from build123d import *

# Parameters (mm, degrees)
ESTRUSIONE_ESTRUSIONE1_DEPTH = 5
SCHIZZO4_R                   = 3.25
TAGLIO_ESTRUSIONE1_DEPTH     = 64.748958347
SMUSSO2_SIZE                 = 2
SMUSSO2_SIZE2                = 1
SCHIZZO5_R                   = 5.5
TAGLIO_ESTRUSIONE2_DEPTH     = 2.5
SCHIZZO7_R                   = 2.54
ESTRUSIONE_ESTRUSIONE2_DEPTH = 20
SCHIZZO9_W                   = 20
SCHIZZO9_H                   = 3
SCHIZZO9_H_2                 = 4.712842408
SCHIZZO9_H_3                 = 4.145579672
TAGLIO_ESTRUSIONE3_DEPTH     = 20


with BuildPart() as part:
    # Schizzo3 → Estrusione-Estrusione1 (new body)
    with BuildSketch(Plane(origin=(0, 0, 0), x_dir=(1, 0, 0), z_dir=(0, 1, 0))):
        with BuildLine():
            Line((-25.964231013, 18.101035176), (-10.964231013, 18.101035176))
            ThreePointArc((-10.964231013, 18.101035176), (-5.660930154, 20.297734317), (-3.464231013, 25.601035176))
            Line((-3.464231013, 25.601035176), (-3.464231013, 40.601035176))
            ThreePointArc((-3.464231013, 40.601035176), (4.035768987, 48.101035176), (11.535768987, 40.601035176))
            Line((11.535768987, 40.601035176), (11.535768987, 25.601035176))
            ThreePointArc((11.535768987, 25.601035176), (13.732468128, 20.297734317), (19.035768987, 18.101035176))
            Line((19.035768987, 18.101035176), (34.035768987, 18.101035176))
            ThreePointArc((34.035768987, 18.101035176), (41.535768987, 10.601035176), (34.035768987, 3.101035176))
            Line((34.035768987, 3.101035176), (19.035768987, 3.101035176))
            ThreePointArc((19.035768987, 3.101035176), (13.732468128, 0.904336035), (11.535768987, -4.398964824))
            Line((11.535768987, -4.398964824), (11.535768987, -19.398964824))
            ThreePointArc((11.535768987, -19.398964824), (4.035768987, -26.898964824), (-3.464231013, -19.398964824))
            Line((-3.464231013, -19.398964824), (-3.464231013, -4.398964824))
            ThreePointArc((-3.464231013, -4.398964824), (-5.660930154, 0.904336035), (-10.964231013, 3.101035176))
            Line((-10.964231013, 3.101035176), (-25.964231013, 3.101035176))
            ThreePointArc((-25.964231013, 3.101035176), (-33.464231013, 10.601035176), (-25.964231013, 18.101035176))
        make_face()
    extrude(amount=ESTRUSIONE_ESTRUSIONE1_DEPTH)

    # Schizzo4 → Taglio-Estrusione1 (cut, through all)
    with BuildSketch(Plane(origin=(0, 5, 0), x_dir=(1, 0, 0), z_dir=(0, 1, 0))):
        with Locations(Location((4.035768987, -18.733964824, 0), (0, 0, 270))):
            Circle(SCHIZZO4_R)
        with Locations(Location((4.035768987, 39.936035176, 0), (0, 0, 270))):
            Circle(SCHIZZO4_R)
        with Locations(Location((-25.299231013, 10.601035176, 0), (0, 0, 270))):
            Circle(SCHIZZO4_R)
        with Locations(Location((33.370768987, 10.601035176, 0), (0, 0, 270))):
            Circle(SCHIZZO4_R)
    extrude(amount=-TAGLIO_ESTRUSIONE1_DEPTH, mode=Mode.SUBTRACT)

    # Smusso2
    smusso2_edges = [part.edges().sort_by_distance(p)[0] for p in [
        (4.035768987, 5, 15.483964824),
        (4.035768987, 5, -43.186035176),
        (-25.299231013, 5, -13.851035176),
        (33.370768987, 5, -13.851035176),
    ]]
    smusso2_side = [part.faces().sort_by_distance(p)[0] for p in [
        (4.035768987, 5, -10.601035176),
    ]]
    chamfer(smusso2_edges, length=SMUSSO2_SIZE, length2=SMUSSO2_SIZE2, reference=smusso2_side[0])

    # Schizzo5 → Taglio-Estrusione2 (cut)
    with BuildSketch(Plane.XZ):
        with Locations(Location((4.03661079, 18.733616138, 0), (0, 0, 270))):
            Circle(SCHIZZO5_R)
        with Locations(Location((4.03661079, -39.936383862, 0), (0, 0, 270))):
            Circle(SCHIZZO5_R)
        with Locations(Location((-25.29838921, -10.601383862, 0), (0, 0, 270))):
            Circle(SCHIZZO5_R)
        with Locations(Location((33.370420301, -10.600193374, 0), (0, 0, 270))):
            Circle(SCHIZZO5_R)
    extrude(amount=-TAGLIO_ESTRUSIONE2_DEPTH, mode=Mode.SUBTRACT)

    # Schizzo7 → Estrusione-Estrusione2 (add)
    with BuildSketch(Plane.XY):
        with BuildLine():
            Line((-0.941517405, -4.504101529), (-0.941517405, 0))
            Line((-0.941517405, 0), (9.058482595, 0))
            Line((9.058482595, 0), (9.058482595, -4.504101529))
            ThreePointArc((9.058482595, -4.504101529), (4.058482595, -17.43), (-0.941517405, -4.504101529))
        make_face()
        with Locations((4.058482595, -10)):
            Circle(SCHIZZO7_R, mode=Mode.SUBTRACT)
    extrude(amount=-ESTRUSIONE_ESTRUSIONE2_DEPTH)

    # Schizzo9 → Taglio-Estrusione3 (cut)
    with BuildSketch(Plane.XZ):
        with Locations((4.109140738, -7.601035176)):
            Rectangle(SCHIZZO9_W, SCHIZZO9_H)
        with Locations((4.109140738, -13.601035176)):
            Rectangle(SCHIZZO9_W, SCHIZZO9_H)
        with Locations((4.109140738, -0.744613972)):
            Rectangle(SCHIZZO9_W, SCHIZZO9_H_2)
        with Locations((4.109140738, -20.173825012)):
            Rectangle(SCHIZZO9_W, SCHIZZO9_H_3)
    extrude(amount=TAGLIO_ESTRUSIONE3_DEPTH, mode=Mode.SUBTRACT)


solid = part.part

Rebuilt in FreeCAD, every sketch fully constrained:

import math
import FreeCAD as App
import Part
import Sketcher
from FreeCAD import Vector


def edges_at(feature, points):
    """Names of the edges that pass closest to the given points."""
    edges = feature.Shape.Edges
    near = lambda p: min(range(len(edges)), key=lambda i: edges[i].distToShape(Part.Vertex(*p))[0])
    return sorted({f"Edge{near(p) + 1}" for p in points})

doc = App.newDocument("Part")
body = doc.addObject("PartDesign::Body", "Body")

sketch1 = body.newObject("Sketcher::SketchObject", "Sketch")
sketch1.AttachmentSupport = (doc.getObject("XZ_Plane"), [""])
sketch1.MapMode = "FlatFace"
sketch1.addGeometry(Part.LineSegment(Vector(-11, -18, 0), Vector(-26, -18, 0)), False)
sketch1.addGeometry(Part.ArcOfCircle(Part.Circle(Vector(-26, -11, 0), Vector(0, 0, 1), 8), math.radians(90), math.radians(270)), False)
sketch1.addGeometry(Part.LineSegment(Vector(-26, -3, 0), Vector(-11, -3, 0)), False)
sketch1.addGeometry(Part.ArcOfCircle(Part.Circle(Vector(-11, 4, 0), Vector(0, 0, 1), 8), math.radians(-90), math.radians(0)), False)
sketch1.addGeometry(Part.LineSegment(Vector(-3, 4, 0), Vector(-3, 19, 0)), False)
sketch1.addGeometry(Part.ArcOfCircle(Part.Circle(Vector(4, 19, 0), Vector(0, 0, 1), 8), math.radians(0), math.radians(180)), False)
sketch1.addGeometry(Part.LineSegment(Vector(12, 19, 0), Vector(12, 4, 0)), False)
sketch1.addGeometry(Part.ArcOfCircle(Part.Circle(Vector(19, 4, 0), Vector(0, 0, 1), 8), math.radians(180), math.radians(270)), False)
sketch1.addGeometry(Part.LineSegment(Vector(19, -3, 0), Vector(34, -3, 0)), False)
sketch1.addGeometry(Part.ArcOfCircle(Part.Circle(Vector(34, -11, 0), Vector(0, 0, 1), 8), math.radians(-90), math.radians(90)), False)
sketch1.addGeometry(Part.LineSegment(Vector(34, -18, 0), Vector(19, -18, 0)), False)
sketch1.addGeometry(Part.ArcOfCircle(Part.Circle(Vector(19, -26, 0), Vector(0, 0, 1), 8), math.radians(90), math.radians(180)), False)
sketch1.addGeometry(Part.LineSegment(Vector(12, -26, 0), Vector(12, -41, 0)), False)
sketch1.addGeometry(Part.ArcOfCircle(Part.Circle(Vector(4, -41, 0), Vector(0, 0, 1), 8), math.radians(180), math.radians(360)), False)
sketch1.addGeometry(Part.LineSegment(Vector(-3, -41, 0), Vector(-3, -26, 0)), False)
sketch1.addGeometry(Part.ArcOfCircle(Part.Circle(Vector(-11, -26, 0), Vector(0, 0, 1), 8), math.radians(0), math.radians(90)), False)
sketch1.addConstraint(Sketcher.Constraint("Tangent", 0, 2, 1, 2))
sketch1.addConstraint(Sketcher.Constraint("Tangent", 1, 1, 2, 1))
sketch1.addConstraint(Sketcher.Constraint("Tangent", 2, 2, 3, 1))
sketch1.addConstraint(Sketcher.Constraint("Tangent", 3, 2, 4, 1))
sketch1.addConstraint(Sketcher.Constraint("Tangent", 4, 2, 5, 2))
sketch1.addConstraint(Sketcher.Constraint("Tangent", 5, 1, 6, 1))
sketch1.addConstraint(Sketcher.Constraint("Tangent", 6, 2, 7, 1))
sketch1.addConstraint(Sketcher.Constraint("Tangent", 7, 2, 8, 1))
sketch1.addConstraint(Sketcher.Constraint("Tangent", 8, 2, 9, 2))
sketch1.addConstraint(Sketcher.Constraint("Tangent", 9, 1, 10, 1))
sketch1.addConstraint(Sketcher.Constraint("Tangent", 10, 2, 11, 1))
sketch1.addConstraint(Sketcher.Constraint("Tangent", 11, 2, 12, 1))
sketch1.addConstraint(Sketcher.Constraint("Tangent", 12, 2, 13, 2))
sketch1.addConstraint(Sketcher.Constraint("Tangent", 13, 1, 14, 1))
sketch1.addConstraint(Sketcher.Constraint("Tangent", 14, 2, 15, 1))
sketch1.addConstraint(Sketcher.Constraint("Tangent", 15, 2, 0, 1))
sketch1.addConstraint(Sketcher.Constraint("Horizontal", 0))
sketch1.addConstraint(Sketcher.Constraint("Horizontal", 2))
sketch1.addConstraint(Sketcher.Constraint("Vertical", 4))
sketch1.addConstraint(Sketcher.Constraint("Vertical", 6))
sketch1.addConstraint(Sketcher.Constraint("Horizontal", 8))
sketch1.addConstraint(Sketcher.Constraint("Horizontal", 10))
sketch1.addConstraint(Sketcher.Constraint("Vertical", 12))
sketch1.addConstraint(Sketcher.Constraint("Vertical", 14))
sketch1.addConstraint(Sketcher.Constraint("Equal", 1, 3))
sketch1.addConstraint(Sketcher.Constraint("Equal", 3, 5))
sketch1.addConstraint(Sketcher.Constraint("Equal", 5, 7))
sketch1.addConstraint(Sketcher.Constraint("Equal", 7, 9))
sketch1.addConstraint(Sketcher.Constraint("Equal", 9, 11))
sketch1.addConstraint(Sketcher.Constraint("Equal", 11, 13))
sketch1.addConstraint(Sketcher.Constraint("Equal", 13, 15))
sketch1.addConstraint(Sketcher.Constraint("Horizontal", 3, 3, 7, 3))
sketch1.addConstraint(Sketcher.Constraint("Vertical", 7, 3, 11, 3))
sketch1.addConstraint(Sketcher.Constraint("Equal", 2, 8))
sketch1.addConstraint(Sketcher.Constraint("Equal", 10, 4))
sketch1.addConstraint(Sketcher.Constraint("Equal", 6, 12))
sketch1.addConstraint(Sketcher.Constraint("Radius", 1, 7.5))
sketch1.addConstraint(Sketcher.Constraint("DistanceX", 0, 2, 0, 1, 15.0))
sketch1.addConstraint(Sketcher.Constraint("DistanceX", 1, 3, -1, 1, 25.964231))
sketch1.addConstraint(Sketcher.Constraint("DistanceY", 1, 3, -1, 1, 10.601035))
pad1 = body.newObject("PartDesign::Pad", "Pad")
pad1.Profile = sketch1
pad1.Length = 5
pad1.Reversed = True

sketch2 = body.newObject("Sketcher::SketchObject", "Sketch001")
sketch2.AttachmentSupport = (doc.getObject("XZ_Plane"), [""])
sketch2.MapMode = "FlatFace"
sketch2.AttachmentOffset = App.Placement(Vector(0, 0, -5), App.Rotation())
sketch2.addGeometry(Part.Circle(Vector(4, 18.7, 0), Vector(0, 0, 1), 3.2), False)
sketch2.addGeometry(Part.Circle(Vector(4, -39.9, 0), Vector(0, 0, 1), 3.2), False)
sketch2.addGeometry(Part.Circle(Vector(-25.3, -10.6, 0), Vector(0, 0, 1), 3.2), False)
sketch2.addGeometry(Part.Circle(Vector(33.4, -10.6, 0), Vector(0, 0, 1), 3.2), False)
sketch2.addConstraint(Sketcher.Constraint("Equal", 0, 1))
sketch2.addConstraint(Sketcher.Constraint("Equal", 1, 2))
sketch2.addConstraint(Sketcher.Constraint("Equal", 2, 3))
sketch2.addConstraint(Sketcher.Constraint("Horizontal", 2, 3, 3, 3))
sketch2.addConstraint(Sketcher.Constraint("Vertical", 0, 3, 1, 3))
sketch2.addConstraint(Sketcher.Constraint("Diameter", 0, 6.5))
sketch2.addConstraint(Sketcher.Constraint("DistanceY", 1, 3, 0, 3, 58.67))
sketch2.addConstraint(Sketcher.Constraint("DistanceX", 2, 3, 3, 3, 58.67))
sketch2.addConstraint(Sketcher.Constraint("DistanceX", 2, 3, 1, 3, 29.335))
sketch2.addConstraint(Sketcher.Constraint("DistanceY", 1, 3, 2, 3, 29.335))
sketch2.addConstraint(Sketcher.Constraint("DistanceX", -1, 1, 0, 3, 4.035769))
sketch2.addConstraint(Sketcher.Constraint("DistanceY", -1, 1, 0, 3, 18.733965))
pocket1 = body.newObject("PartDesign::Pocket", "Pocket")
pocket1.Profile = sketch2
pocket1.Type = "ThroughAll"
pocket1.Reversed = True
doc.recompute()

chamfer = body.newObject("PartDesign::Chamfer", "Chamfer")
chamfer.Base = (pocket1, edges_at(pocket1, [
    (4.036, 5, 15.484),
    (4.036, 5, -43.186),
    (-25.299, 5, -13.851),
    (33.371, 5, -13.851),
]))
chamfer.ChamferType = "Two distances"
chamfer.Size = 2
chamfer.Size2 = 1

sketch3 = body.newObject("Sketcher::SketchObject", "Sketch002")
sketch3.AttachmentSupport = (doc.getObject("XZ_Plane"), [""])
sketch3.MapMode = "FlatFace"
sketch3.addGeometry(Part.Circle(Vector(4, 19, 0), Vector(0, 0, 1), 6), False)
sketch3.addGeometry(Part.Circle(Vector(4, -40, 0), Vector(0, 0, 1), 6), False)
sketch3.addGeometry(Part.Circle(Vector(-25, -11, 0), Vector(0, 0, 1), 6), False)
sketch3.addGeometry(Part.Circle(Vector(33, -11, 0), Vector(0, 0, 1), 6), False)
sketch3.addConstraint(Sketcher.Constraint("Equal", 0, 1))
sketch3.addConstraint(Sketcher.Constraint("Equal", 1, 2))
sketch3.addConstraint(Sketcher.Constraint("Equal", 2, 3))
sketch3.addConstraint(Sketcher.Constraint("Vertical", 0, 3, 1, 3))
sketch3.addConstraint(Sketcher.Constraint("Diameter", 0, 11.0))
sketch3.addConstraint(Sketcher.Constraint("DistanceY", 1, 3, 0, 3, 58.67))
sketch3.addConstraint(Sketcher.Constraint("DistanceX", 2, 3, 0, 3, 29.335))
sketch3.addConstraint(Sketcher.Constraint("DistanceY", 2, 3, 0, 3, 29.335))
sketch3.addConstraint(Sketcher.Constraint("DistanceX", -1, 1, 0, 3, 4.036611))
sketch3.addConstraint(Sketcher.Constraint("DistanceX", -1, 1, 3, 3, 33.37042))
sketch3.addConstraint(Sketcher.Constraint("DistanceY", 3, 3, 0, 3, 29.33381))
sketch3.addConstraint(Sketcher.Constraint("DistanceY", -1, 1, 0, 3, 18.733616))
pocket2 = body.newObject("PartDesign::Pocket", "Pocket001")
pocket2.Profile = sketch3
pocket2.Length = 2.5

sketch4 = body.newObject("Sketcher::SketchObject", "Sketch003")
sketch4.AttachmentSupport = (doc.getObject("XY_Plane"), [""])
sketch4.MapMode = "FlatFace"
sketch4.addGeometry(Part.LineSegment(Vector(-0.9, 0, 0), Vector(-0.9, -4.5, 0)), False)
sketch4.addGeometry(Part.ArcOfCircle(Part.Circle(Vector(4.1, -10, 0), Vector(0, 0, 1), 7.4), math.radians(132), math.radians(408)), False)
sketch4.addGeometry(Part.LineSegment(Vector(9.1, -4.5, 0), Vector(9.1, 0, 0)), False)
sketch4.addGeometry(Part.LineSegment(Vector(9.1, 0, 0), Vector(-0.9, 0, 0)), False)
sketch4.addGeometry(Part.Circle(Vector(4.1, -10, 0), Vector(0, 0, 1), 2.5), False)
sketch4.addConstraint(Sketcher.Constraint("Coincident", 0, 2, 1, 1))
sketch4.addConstraint(Sketcher.Constraint("Coincident", 1, 2, 2, 1))
sketch4.addConstraint(Sketcher.Constraint("Coincident", 2, 2, 3, 1))
sketch4.addConstraint(Sketcher.Constraint("Coincident", 3, 2, 0, 1))
sketch4.addConstraint(Sketcher.Constraint("Vertical", 0))
sketch4.addConstraint(Sketcher.Constraint("Vertical", 2))
sketch4.addConstraint(Sketcher.Constraint("Horizontal", 3))
sketch4.addConstraint(Sketcher.Constraint("Coincident", 4, 3, 1, 3))
sketch4.addConstraint(Sketcher.Constraint("PointOnObject", 2, 2, -1))
sketch4.addConstraint(Sketcher.Constraint("Horizontal", 0, 2, 1, 2))
sketch4.addConstraint(Sketcher.Constraint("Diameter", 4, 5.08))
sketch4.addConstraint(Sketcher.Constraint("DistanceX", 3, 2, 3, 1, 10.0))
sketch4.addConstraint(Sketcher.Constraint("Radius", 1, 7.43))
sketch4.addConstraint(Sketcher.Constraint("DistanceY", 1, 3, -1, 1, 10.0))
sketch4.addConstraint(Sketcher.Constraint("DistanceX", -1, 1, 1, 3, 4.058483))
pad2 = body.newObject("PartDesign::Pad", "Pad001")
pad2.Profile = sketch4
pad2.Length = 20
pad2.Reversed = True

sketch5 = body.newObject("Sketcher::SketchObject", "Sketch004")
sketch5.AttachmentSupport = (doc.getObject("XZ_Plane"), [""])
sketch5.MapMode = "FlatFace"
sketch5.addGeometry(Part.LineSegment(Vector(-5.9, -6.1, 0), Vector(-5.9, -9.1, 0)), False)
sketch5.addGeometry(Part.LineSegment(Vector(-5.9, -9.1, 0), Vector(14.1, -9.1, 0)), False)
sketch5.addGeometry(Part.LineSegment(Vector(14.1, -9.1, 0), Vector(14.1, -6.1, 0)), False)
sketch5.addGeometry(Part.LineSegment(Vector(14.1, -6.1, 0), Vector(-5.9, -6.1, 0)), False)
sketch5.addGeometry(Part.LineSegment(Vector(-5.9, -12.1, 0), Vector(-5.9, -15.1, 0)), False)
sketch5.addGeometry(Part.LineSegment(Vector(-5.9, -15.1, 0), Vector(14.1, -15.1, 0)), False)
sketch5.addGeometry(Part.LineSegment(Vector(14.1, -15.1, 0), Vector(14.1, -12.1, 0)), False)
sketch5.addGeometry(Part.LineSegment(Vector(14.1, -12.1, 0), Vector(-5.9, -12.1, 0)), False)
sketch5.addGeometry(Part.LineSegment(Vector(-5.9, 1.6, 0), Vector(-5.9, -3.1, 0)), False)
sketch5.addGeometry(Part.LineSegment(Vector(-5.9, -3.1, 0), Vector(14.1, -3.1, 0)), False)
sketch5.addGeometry(Part.LineSegment(Vector(14.1, -3.1, 0), Vector(14.1, 1.6, 0)), False)
sketch5.addGeometry(Part.LineSegment(Vector(14.1, 1.6, 0), Vector(-5.9, 1.6, 0)), False)
sketch5.addGeometry(Part.LineSegment(Vector(-5.9, -18.1, 0), Vector(-5.9, -22.2, 0)), False)
sketch5.addGeometry(Part.LineSegment(Vector(-5.9, -22.2, 0), Vector(14.1, -22.2, 0)), False)
sketch5.addGeometry(Part.LineSegment(Vector(14.1, -22.2, 0), Vector(14.1, -18.1, 0)), False)
sketch5.addGeometry(Part.LineSegment(Vector(14.1, -18.1, 0), Vector(-5.9, -18.1, 0)), False)
sketch5.addConstraint(Sketcher.Constraint("Coincident", 0, 2, 1, 1))
sketch5.addConstraint(Sketcher.Constraint("Coincident", 1, 2, 2, 1))
sketch5.addConstraint(Sketcher.Constraint("Coincident", 2, 2, 3, 1))
sketch5.addConstraint(Sketcher.Constraint("Coincident", 3, 2, 0, 1))
sketch5.addConstraint(Sketcher.Constraint("Coincident", 4, 2, 5, 1))
sketch5.addConstraint(Sketcher.Constraint("Coincident", 5, 2, 6, 1))
sketch5.addConstraint(Sketcher.Constraint("Coincident", 6, 2, 7, 1))
sketch5.addConstraint(Sketcher.Constraint("Coincident", 7, 2, 4, 1))
sketch5.addConstraint(Sketcher.Constraint("Coincident", 8, 2, 9, 1))
sketch5.addConstraint(Sketcher.Constraint("Coincident", 9, 2, 10, 1))
sketch5.addConstraint(Sketcher.Constraint("Coincident", 10, 2, 11, 1))
sketch5.addConstraint(Sketcher.Constraint("Coincident", 11, 2, 8, 1))
sketch5.addConstraint(Sketcher.Constraint("Coincident", 12, 2, 13, 1))
sketch5.addConstraint(Sketcher.Constraint("Coincident", 13, 2, 14, 1))
sketch5.addConstraint(Sketcher.Constraint("Coincident", 14, 2, 15, 1))
sketch5.addConstraint(Sketcher.Constraint("Coincident", 15, 2, 12, 1))
sketch5.addConstraint(Sketcher.Constraint("Vertical", 0))
sketch5.addConstraint(Sketcher.Constraint("Horizontal", 1))
sketch5.addConstraint(Sketcher.Constraint("Vertical", 2))
sketch5.addConstraint(Sketcher.Constraint("Horizontal", 3))
sketch5.addConstraint(Sketcher.Constraint("Vertical", 4))
sketch5.addConstraint(Sketcher.Constraint("Horizontal", 5))
sketch5.addConstraint(Sketcher.Constraint("Vertical", 6))
sketch5.addConstraint(Sketcher.Constraint("Horizontal", 7))
sketch5.addConstraint(Sketcher.Constraint("Vertical", 8))
sketch5.addConstraint(Sketcher.Constraint("Horizontal", 9))
sketch5.addConstraint(Sketcher.Constraint("Vertical", 10))
sketch5.addConstraint(Sketcher.Constraint("Horizontal", 11))
sketch5.addConstraint(Sketcher.Constraint("Vertical", 12))
sketch5.addConstraint(Sketcher.Constraint("Horizontal", 13))
sketch5.addConstraint(Sketcher.Constraint("Vertical", 14))
sketch5.addConstraint(Sketcher.Constraint("Horizontal", 15))
sketch5.addConstraint(Sketcher.Constraint("Vertical", 3, 2, 4, 2))
sketch5.addConstraint(Sketcher.Constraint("Vertical", 2, 2, 5, 2))
sketch5.addConstraint(Sketcher.Constraint("Vertical", 7, 2, 8, 2))
sketch5.addConstraint(Sketcher.Constraint("Vertical", 6, 2, 9, 2))
sketch5.addConstraint(Sketcher.Constraint("Vertical", 11, 2, 12, 2))
sketch5.addConstraint(Sketcher.Constraint("Vertical", 10, 2, 13, 2))
sketch5.addConstraint(Sketcher.Constraint("Equal", 2, 4))
sketch5.addConstraint(Sketcher.Constraint("DistanceX", 1, 1, 1, 2, 20.0))
sketch5.addConstraint(Sketcher.Constraint("DistanceY", 0, 2, 0, 1, 3.0))
sketch5.addConstraint(Sketcher.Constraint("DistanceY", 4, 2, 0, 2, 6.0))
sketch5.addConstraint(Sketcher.Constraint("DistanceY", 3, 2, 8, 2, 3.0))
sketch5.addConstraint(Sketcher.Constraint("DistanceY", 14, 2, 5, 2, 3.0))
sketch5.addConstraint(Sketcher.Constraint("DistanceY", 12, 2, 12, 1, 4.14558))
sketch5.addConstraint(Sketcher.Constraint("DistanceY", 8, 2, 8, 1, 4.712842))
sketch5.addConstraint(Sketcher.Constraint("DistanceX", 0, 2, -1, 1, 5.890859))
sketch5.addConstraint(Sketcher.Constraint("DistanceY", 0, 2, -1, 1, 9.101035))
pocket3 = body.newObject("PartDesign::Pocket", "Pocket002")
pocket3.Profile = sketch5
pocket3.Length = 20
pocket3.Reversed = True

doc.recompute()
